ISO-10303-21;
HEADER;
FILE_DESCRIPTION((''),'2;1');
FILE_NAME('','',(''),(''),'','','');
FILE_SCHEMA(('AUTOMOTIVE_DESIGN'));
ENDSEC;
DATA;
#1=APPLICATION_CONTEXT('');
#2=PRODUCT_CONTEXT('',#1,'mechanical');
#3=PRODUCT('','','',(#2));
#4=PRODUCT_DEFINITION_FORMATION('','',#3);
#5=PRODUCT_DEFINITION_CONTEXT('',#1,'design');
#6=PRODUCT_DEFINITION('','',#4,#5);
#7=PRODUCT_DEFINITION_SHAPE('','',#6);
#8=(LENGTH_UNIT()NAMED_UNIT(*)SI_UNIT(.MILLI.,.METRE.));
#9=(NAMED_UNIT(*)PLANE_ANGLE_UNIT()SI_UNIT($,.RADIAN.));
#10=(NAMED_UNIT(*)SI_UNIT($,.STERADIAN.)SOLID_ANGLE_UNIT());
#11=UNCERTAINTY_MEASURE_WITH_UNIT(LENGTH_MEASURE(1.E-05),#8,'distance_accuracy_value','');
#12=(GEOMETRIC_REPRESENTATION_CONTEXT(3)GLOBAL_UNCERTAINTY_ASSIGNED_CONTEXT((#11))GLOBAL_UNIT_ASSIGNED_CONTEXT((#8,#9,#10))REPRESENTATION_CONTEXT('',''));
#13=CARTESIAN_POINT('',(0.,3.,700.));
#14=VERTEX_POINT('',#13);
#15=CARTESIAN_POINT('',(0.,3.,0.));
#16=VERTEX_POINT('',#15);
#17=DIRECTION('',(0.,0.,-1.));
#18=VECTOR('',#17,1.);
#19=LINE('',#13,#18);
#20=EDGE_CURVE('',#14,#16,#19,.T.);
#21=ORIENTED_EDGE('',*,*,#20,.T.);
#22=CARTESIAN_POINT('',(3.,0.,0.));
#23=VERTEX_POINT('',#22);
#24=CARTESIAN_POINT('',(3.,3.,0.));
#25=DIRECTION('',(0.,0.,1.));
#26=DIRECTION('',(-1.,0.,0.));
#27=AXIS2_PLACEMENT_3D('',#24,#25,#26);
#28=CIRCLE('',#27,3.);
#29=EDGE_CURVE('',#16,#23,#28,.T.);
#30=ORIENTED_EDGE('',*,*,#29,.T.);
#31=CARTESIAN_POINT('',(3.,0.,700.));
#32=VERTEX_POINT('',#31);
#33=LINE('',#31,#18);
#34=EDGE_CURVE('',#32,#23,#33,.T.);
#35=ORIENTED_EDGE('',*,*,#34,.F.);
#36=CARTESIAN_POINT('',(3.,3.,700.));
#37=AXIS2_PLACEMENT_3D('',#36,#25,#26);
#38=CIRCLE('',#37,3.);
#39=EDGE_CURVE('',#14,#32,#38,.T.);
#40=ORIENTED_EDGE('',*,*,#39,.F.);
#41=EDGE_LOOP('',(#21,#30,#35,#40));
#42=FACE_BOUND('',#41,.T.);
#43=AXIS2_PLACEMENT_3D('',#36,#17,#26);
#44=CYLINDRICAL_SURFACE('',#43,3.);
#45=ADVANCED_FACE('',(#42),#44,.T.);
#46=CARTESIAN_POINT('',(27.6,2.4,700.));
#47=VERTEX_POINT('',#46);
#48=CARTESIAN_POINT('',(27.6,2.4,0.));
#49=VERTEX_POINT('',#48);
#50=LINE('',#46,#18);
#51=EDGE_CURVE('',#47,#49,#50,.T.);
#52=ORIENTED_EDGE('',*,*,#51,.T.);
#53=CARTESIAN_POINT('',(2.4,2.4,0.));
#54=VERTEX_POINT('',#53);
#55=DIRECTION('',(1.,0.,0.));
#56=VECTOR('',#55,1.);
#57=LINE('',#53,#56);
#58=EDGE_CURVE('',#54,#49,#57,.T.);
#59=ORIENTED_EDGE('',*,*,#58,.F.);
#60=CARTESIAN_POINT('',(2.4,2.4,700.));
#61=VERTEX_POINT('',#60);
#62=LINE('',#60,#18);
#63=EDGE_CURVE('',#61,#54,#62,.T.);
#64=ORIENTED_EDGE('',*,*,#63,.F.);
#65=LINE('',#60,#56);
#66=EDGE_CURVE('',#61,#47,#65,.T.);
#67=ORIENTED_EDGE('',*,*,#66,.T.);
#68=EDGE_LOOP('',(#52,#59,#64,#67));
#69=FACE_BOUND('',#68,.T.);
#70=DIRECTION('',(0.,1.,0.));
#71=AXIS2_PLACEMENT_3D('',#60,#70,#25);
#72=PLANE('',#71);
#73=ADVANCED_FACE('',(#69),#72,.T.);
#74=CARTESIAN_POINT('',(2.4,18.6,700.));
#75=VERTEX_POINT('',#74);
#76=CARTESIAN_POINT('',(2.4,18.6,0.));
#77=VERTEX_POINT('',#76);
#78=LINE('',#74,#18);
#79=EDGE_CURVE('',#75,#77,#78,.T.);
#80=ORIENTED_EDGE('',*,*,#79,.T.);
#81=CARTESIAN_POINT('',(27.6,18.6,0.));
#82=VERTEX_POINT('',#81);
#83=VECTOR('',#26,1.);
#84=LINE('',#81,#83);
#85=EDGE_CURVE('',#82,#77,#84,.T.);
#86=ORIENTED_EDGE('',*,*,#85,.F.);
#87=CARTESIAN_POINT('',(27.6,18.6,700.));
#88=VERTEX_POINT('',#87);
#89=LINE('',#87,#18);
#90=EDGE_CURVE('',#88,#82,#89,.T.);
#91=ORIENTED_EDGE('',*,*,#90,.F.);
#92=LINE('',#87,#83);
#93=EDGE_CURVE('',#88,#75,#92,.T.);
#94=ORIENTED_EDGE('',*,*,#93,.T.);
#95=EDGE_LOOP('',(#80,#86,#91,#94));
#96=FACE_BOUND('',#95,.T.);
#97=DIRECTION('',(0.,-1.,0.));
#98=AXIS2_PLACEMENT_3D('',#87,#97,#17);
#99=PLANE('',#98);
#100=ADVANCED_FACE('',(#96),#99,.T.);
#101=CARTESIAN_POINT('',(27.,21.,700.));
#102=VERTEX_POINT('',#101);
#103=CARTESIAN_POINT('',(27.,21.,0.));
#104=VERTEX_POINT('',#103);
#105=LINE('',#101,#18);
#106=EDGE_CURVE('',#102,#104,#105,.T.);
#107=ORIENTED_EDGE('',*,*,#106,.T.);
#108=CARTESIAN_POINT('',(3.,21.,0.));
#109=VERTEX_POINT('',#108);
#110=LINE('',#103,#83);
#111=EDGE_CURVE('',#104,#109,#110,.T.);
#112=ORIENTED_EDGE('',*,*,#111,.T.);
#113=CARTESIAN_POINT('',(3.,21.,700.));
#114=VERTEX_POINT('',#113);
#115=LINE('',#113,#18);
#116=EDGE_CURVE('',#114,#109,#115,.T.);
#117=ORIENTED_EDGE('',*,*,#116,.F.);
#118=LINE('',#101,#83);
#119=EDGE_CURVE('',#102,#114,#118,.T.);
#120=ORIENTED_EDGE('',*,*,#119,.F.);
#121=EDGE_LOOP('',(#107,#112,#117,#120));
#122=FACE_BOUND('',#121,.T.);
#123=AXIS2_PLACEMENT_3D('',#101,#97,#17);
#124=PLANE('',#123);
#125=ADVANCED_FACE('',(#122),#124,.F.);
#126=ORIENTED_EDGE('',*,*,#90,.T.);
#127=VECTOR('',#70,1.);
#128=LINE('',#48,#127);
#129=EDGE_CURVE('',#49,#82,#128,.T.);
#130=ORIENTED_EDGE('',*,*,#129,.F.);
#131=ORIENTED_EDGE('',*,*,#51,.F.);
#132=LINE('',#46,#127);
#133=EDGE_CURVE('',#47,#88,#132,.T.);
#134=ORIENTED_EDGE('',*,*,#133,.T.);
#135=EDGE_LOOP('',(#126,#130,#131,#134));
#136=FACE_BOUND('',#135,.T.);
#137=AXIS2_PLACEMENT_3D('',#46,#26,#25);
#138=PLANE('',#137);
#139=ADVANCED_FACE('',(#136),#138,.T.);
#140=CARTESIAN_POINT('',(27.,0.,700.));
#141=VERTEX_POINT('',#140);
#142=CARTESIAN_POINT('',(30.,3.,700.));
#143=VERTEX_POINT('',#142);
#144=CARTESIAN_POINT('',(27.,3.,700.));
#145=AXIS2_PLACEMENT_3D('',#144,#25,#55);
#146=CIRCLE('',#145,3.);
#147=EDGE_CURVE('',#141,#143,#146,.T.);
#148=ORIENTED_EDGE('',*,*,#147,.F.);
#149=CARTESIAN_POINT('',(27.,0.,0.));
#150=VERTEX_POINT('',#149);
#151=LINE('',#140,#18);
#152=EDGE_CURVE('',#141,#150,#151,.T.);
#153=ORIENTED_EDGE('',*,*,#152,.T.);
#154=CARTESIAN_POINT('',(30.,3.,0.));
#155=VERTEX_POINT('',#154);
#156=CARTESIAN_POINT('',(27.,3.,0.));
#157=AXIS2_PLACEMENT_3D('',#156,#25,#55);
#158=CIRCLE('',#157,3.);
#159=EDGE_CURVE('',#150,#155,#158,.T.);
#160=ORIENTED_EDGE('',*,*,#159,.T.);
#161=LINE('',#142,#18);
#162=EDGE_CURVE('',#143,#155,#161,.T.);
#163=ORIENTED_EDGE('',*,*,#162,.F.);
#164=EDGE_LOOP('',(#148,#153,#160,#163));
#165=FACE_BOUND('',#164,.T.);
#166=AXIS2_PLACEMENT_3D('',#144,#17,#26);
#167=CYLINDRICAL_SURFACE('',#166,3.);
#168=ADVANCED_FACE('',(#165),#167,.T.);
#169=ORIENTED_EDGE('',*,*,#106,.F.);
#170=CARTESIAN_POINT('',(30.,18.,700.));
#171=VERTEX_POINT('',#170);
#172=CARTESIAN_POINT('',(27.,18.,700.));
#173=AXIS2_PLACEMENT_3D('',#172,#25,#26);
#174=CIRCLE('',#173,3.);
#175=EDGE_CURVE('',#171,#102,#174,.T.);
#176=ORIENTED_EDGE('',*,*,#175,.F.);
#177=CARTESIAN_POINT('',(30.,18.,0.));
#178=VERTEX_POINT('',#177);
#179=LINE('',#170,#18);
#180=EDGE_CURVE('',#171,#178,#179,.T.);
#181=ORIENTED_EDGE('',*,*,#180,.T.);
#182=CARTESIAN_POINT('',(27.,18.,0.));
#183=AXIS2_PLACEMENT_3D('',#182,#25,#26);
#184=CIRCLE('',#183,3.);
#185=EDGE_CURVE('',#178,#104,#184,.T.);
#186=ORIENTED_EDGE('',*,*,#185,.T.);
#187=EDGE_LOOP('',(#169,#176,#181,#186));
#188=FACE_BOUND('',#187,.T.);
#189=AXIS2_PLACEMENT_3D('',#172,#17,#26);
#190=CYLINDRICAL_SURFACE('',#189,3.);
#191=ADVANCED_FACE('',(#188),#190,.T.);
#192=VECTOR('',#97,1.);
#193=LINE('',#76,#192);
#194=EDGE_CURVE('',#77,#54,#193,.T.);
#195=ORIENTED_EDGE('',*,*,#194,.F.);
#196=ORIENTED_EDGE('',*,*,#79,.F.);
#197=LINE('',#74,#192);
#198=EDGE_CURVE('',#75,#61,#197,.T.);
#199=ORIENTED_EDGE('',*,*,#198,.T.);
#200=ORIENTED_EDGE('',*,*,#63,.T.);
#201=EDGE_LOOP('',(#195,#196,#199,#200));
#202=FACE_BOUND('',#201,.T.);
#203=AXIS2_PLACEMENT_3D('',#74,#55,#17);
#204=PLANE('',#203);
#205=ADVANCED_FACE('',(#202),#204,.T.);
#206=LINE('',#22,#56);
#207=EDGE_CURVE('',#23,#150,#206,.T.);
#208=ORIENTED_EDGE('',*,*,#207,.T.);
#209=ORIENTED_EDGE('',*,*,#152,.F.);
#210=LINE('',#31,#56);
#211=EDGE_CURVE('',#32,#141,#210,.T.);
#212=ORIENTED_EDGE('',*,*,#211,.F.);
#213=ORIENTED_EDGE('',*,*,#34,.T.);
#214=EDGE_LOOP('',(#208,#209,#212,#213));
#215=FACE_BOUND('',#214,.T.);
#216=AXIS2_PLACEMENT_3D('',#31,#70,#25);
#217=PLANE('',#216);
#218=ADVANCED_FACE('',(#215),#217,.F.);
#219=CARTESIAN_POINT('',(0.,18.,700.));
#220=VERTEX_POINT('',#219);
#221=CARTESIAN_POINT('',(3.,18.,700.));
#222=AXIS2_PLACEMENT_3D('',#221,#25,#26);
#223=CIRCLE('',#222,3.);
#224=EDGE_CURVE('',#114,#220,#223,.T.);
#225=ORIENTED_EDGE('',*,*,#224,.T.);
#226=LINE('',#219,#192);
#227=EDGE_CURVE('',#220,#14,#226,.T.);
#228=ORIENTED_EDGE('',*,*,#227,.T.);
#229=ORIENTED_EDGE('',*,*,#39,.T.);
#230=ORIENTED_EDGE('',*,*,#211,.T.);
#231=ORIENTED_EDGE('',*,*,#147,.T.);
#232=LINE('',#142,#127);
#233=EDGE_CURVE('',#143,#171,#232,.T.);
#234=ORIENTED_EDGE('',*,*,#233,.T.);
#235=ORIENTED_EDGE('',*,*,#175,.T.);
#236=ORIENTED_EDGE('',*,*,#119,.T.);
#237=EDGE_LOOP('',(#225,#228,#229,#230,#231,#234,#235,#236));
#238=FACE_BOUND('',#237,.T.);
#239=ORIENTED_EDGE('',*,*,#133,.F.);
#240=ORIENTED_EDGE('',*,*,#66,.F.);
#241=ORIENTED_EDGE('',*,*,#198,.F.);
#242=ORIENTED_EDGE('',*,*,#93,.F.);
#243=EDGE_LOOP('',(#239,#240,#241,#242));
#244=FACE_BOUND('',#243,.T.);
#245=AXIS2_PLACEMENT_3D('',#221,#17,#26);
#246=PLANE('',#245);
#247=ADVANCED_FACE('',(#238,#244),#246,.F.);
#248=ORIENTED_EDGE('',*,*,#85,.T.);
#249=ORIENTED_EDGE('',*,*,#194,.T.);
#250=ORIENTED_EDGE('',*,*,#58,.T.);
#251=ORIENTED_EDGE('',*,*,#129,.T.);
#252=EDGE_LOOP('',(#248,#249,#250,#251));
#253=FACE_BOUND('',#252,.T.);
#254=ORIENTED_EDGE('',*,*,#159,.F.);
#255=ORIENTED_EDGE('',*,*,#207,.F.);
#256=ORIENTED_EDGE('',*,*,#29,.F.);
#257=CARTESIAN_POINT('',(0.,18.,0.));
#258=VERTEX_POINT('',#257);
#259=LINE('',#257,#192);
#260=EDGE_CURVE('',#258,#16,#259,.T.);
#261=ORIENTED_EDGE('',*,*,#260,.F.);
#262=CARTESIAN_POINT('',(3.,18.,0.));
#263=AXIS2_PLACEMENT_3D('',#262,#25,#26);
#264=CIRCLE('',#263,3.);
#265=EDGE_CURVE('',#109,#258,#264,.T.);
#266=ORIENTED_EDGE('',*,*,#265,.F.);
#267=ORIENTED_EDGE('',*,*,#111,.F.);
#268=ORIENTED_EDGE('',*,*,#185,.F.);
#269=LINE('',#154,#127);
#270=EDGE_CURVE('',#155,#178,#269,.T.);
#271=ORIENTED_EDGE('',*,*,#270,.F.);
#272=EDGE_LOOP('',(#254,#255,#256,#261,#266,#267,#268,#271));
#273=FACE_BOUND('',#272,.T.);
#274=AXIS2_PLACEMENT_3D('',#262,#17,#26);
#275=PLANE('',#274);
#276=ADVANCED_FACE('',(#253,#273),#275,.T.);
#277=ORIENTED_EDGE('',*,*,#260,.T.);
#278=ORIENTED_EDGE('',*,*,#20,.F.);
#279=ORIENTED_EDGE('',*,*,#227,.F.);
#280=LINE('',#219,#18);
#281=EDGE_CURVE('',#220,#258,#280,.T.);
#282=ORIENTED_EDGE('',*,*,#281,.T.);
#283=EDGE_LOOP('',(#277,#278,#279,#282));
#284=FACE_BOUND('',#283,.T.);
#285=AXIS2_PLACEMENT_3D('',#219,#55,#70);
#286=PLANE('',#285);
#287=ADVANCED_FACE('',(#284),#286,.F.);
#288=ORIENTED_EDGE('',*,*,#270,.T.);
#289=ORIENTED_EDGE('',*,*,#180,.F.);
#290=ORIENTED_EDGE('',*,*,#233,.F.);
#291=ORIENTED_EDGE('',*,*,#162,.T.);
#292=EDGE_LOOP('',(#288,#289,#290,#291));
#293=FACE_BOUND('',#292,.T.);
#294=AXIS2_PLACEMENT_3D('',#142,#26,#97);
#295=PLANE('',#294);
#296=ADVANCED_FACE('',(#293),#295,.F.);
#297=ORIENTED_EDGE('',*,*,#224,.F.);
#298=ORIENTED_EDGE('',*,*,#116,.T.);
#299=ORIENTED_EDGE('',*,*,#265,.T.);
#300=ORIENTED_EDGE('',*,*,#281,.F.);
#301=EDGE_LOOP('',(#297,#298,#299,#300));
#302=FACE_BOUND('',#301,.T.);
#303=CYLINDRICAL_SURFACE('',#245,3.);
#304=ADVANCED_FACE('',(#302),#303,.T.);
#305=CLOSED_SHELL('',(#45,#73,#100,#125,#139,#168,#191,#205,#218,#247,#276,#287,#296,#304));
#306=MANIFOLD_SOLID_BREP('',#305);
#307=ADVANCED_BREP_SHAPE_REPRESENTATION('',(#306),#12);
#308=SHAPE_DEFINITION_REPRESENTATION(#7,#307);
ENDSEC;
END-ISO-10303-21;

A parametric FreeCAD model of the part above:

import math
import FreeCAD as App
import Part
import Sketcher


def add_polygon(sketch, points):
    """Adds a closed chain of lines whose ends are joined by coincident constraints."""
    first, n = sketch.GeometryCount, len(points)
    for a, b in zip(points, points[1:] + points[:1]):
        sketch.addGeometry(Part.LineSegment(App.Vector(*a, 0), App.Vector(*b, 0)), False)
    for i in range(n):
        sketch.addConstraint(Sketcher.Constraint("Coincident", first + i, 2, first + (i + 1) % n, 1))

doc = App.newDocument("Part")
body = doc.addObject("PartDesign::Body", "Body")

sketch1 = body.newObject("Sketcher::SketchObject", "Sketch")
sketch1.AttachmentSupport = (doc.getObject("XY_Plane"), [""])
sketch1.MapMode = "FlatFace"
sketch1.addGeometry(Part.LineSegment(App.Vector(3, 0, 0), App.Vector(27, 0, 0)), False)
sketch1.addGeometry(Part.ArcOfCircle(Part.Circle(App.Vector(27, 3, 0), App.Vector(0, 0, 1), 3), math.radians(-90), math.radians(0)), False)
sketch1.addGeometry(Part.LineSegment(App.Vector(30, 3, 0), App.Vector(30, 18, 0)), False)
sketch1.addGeometry(Part.ArcOfCircle(Part.Circle(App.Vector(27, 18, 0), App.Vector(0, 0, 1), 3), math.radians(0), math.radians(90)), False)
sketch1.addGeometry(Part.LineSegment(App.Vector(27, 21, 0), App.Vector(3, 21, 0)), False)
sketch1.addGeometry(Part.ArcOfCircle(Part.Circle(App.Vector(3, 18, 0), App.Vector(0, 0, 1), 3), math.radians(90), math.radians(180)), False)
sketch1.addGeometry(Part.LineSegment(App.Vector(0, 18, 0), App.Vector(0, 3, 0)), False)
sketch1.addGeometry(Part.ArcOfCircle(Part.Circle(App.Vector(3, 3, 0), App.Vector(0, 0, 1), 3), math.radians(180), math.radians(270)), False)
add_polygon(sketch1, [(27.6, 2.4), (2.4, 2.4), (2.4, 18.6), (27.6, 18.6)])
sketch1.addConstraint(Sketcher.Constraint("Tangent", 0, 2, 1, 1))
sketch1.addConstraint(Sketcher.Constraint("Tangent", 1, 2, 2, 1))
sketch1.addConstraint(Sketcher.Constraint("Tangent", 2, 2, 3, 1))
sketch1.addConstraint(Sketcher.Constraint("Tangent", 3, 2, 4, 1))
sketch1.addConstraint(Sketcher.Constraint("Tangent", 4, 2, 5, 1))
sketch1.addConstraint(Sketcher.Constraint("Tangent", 5, 2, 6, 1))
sketch1.addConstraint(Sketcher.Constraint("Tangent", 6, 2, 7, 1))
sketch1.addConstraint(Sketcher.Constraint("Tangent", 7, 2, 0, 1))
sketch1.addConstraint(Sketcher.Constraint("Horizontal", 0))
sketch1.addConstraint(Sketcher.Constraint("Vertical", 2))
sketch1.addConstraint(Sketcher.Constraint("Horizontal", 4))
sketch1.addConstraint(Sketcher.Constraint("Vertical", 6))
sketch1.addConstraint(Sketcher.Constraint("Horizontal", 8))
sketch1.addConstraint(Sketcher.Constraint("Vertical", 9))
sketch1.addConstraint(Sketcher.Constraint("Horizontal", 10))
sketch1.addConstraint(Sketcher.Constraint("Vertical", 11))
sketch1.addConstraint(Sketcher.Constraint("Equal", 1, 3))
sketch1.addConstraint(Sketcher.Constraint("Equal", 3, 5))
sketch1.addConstraint(Sketcher.Constraint("Equal", 5, 7))
sketch1.addConstraint(Sketcher.Constraint("PointOnObject", 0, 2, -1))
sketch1.addConstraint(Sketcher.Constraint("PointOnObject", 5, 2, -2))
sketch1.addConstraint(Sketcher.Constraint("Radius", 1, 3.0))
sketch1.addConstraint(Sketcher.Constraint("DistanceX", 0, 1, 0, 2, 24.0))
sketch1.addConstraint(Sketcher.Constraint("DistanceY", 2, 1, 2, 2, 15.0))
sketch1.addConstraint(Sketcher.Constraint("DistanceX", 8, 2, 8, 1, 25.2))
sketch1.addConstraint(Sketcher.Constraint("DistanceY", 9, 1, 9, 2, 16.2))
sketch1.addConstraint(Sketcher.Constraint("DistanceX", -1, 1, 8, 2, 2.4))
sketch1.addConstraint(Sketcher.Constraint("DistanceY", -1, 1, 8, 2, 2.4))
pad1 = body.newObject("PartDesign::Pad", "Pad")
pad1.Profile = sketch1
pad1.Length = 700

doc.recompute()
